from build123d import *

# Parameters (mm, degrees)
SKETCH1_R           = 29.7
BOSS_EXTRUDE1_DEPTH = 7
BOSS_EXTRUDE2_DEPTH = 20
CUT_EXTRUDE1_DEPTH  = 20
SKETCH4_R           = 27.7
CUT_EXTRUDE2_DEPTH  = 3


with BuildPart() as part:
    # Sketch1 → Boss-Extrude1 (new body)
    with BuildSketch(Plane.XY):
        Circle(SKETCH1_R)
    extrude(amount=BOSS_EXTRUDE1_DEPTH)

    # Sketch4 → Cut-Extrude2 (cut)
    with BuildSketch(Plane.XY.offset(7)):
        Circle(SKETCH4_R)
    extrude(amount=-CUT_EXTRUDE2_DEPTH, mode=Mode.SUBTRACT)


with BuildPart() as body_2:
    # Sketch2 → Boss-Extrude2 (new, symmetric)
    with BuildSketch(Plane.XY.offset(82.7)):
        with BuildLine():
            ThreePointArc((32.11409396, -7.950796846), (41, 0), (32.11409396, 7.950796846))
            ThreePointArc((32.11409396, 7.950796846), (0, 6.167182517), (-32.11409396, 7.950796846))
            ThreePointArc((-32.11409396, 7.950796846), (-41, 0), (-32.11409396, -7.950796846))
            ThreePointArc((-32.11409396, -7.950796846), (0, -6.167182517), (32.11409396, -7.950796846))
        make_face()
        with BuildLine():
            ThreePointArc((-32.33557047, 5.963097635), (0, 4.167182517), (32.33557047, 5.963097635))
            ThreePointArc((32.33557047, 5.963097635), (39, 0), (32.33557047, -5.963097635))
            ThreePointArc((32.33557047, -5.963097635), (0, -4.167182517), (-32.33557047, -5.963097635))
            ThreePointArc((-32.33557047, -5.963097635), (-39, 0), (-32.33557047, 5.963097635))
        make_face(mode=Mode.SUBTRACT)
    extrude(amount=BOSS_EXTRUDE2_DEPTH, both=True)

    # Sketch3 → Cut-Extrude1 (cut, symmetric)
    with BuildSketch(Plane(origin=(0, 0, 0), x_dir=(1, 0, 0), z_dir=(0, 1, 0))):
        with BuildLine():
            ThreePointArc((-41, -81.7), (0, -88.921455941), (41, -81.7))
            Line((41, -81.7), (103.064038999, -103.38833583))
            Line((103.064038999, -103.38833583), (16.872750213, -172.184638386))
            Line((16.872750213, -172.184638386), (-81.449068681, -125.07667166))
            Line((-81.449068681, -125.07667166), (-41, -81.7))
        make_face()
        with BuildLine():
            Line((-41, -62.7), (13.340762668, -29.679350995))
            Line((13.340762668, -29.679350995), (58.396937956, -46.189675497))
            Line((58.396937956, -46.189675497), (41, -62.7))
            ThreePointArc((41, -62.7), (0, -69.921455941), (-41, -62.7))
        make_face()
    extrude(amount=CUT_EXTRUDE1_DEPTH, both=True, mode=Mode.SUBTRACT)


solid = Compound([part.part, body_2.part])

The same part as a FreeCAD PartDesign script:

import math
import FreeCAD as App
import Part
import Sketcher
from FreeCAD import Vector

doc = App.newDocument("Part")
body = doc.addObject("PartDesign::Body", "Body")

sketch1 = doc.addObject("Sketcher::SketchObject", "Sketch")
body.addObject(sketch1)
sketch1.AttachmentSupport = (doc.XY_Plane, [""])
sketch1.MapMode = "FlatFace"
sketch1.addGeometry(Part.Circle(Vector(0, 0, 0), Vector(0, 0, 1), 30), False)
sketch1.addConstraint(Sketcher.Constraint("Coincident", 0, 3, -1, 1))
sketch1.addConstraint(Sketcher.Constraint("Diameter", 0, 59.4))
pad1 = doc.addObject("PartDesign::Pad", "Pad")
body.addObject(pad1)
pad1.Profile = sketch1
pad1.Length = 7

sketch2 = doc.addObject("Sketcher::SketchObject", "Sketch001")
body.addObject(sketch2)
sketch2.AttachmentSupport = (doc.XY_Plane, [""])
sketch2.MapMode = "FlatFace"
sketch2.AttachmentOffset = App.Placement(Vector(0, 0, 7), App.Rotation())
sketch2.addGeometry(Part.Circle(Vector(0, 0, 0), Vector(0, 0, 1), 28), False)
sketch2.addConstraint(Sketcher.Constraint("Coincident", 0, 3, -1, 1))
sketch2.addConstraint(Sketcher.Constraint("Diameter", 0, 55.4))
pocket1 = doc.addObject("PartDesign::Pocket", "Pocket")
body.addObject(pocket1)
pocket1.Profile = sketch2
pocket1.Length = 3
body2 = doc.addObject("PartDesign::Body", "Body001")

sketch3 = doc.addObject("Sketcher::SketchObject", "Sketch002")
body2.addObject(sketch3)
sketch3.AttachmentSupport = (doc.getObject("XY_Plane001"), [""])
sketch3.MapMode = "FlatFace"
sketch3.AttachmentOffset = App.Placement(Vector(0, 0, 82.7), App.Rotation())
sketch3.addGeometry(Part.ArcOfCircle(Part.Circle(Vector(33, 0, 0), Vector(0, 0, 1), 8), math.radians(-96), math.radians(96)), False)
sketch3.addGeometry(Part.ArcOfCircle(Part.Circle(Vector(0, 296, 0), Vector(0, 0, 1), 290), math.radians(-96.36), math.radians(-83.64)), False)
sketch3.addGeometry(Part.ArcOfCircle(Part.Circle(Vector(-33, 0, 0), Vector(0, 0, 1), 8), math.radians(84), math.radians(276)), False)
sketch3.addGeometry(Part.ArcOfCircle(Part.Circle(Vector(0, -296, 0), Vector(0, 0, 1), 290), math.radians(83.64), math.radians(96.36)), False)
sketch3.addGeometry(Part.ArcOfCircle(Part.Circle(Vector(-33, 0, 0), Vector(0, 0, 1), 6), math.radians(84), math.radians(276)), False)
sketch3.addGeometry(Part.ArcOfCircle(Part.Circle(Vector(0, 296, 0), Vector(0, 0, 1), 292), math.radians(-96.36), math.radians(-83.64)), False)
sketch3.addGeometry(Part.ArcOfCircle(Part.Circle(Vector(33, 0, 0), Vector(0, 0, 1), 6), math.radians(-96), math.radians(96)), False)
sketch3.addGeometry(Part.ArcOfCircle(Part.Circle(Vector(0, -296, 0), Vector(0, 0, 1), 292), math.radians(83.64), math.radians(96.36)), False)
sketch3.addConstraint(Sketcher.Constraint("Tangent", 0, 2, 1, 2))
sketch3.addConstraint(Sketcher.Constraint("Tangent", 1, 1, 2, 1))
sketch3.addConstraint(Sketcher.Constraint("Tangent", 2, 2, 3, 2))
sketch3.addConstraint(Sketcher.Constraint("Tangent", 3, 1, 0, 1))
sketch3.addConstraint(Sketcher.Constraint("Tangent", 4, 1, 5, 1))
sketch3.addConstraint(Sketcher.Constraint("Tangent", 5, 2, 6, 2))
sketch3.addConstraint(Sketcher.Constraint("Tangent", 6, 1, 7, 1))
sketch3.addConstraint(Sketcher.Constraint("Tangent", 7, 2, 4, 2))
sketch3.addConstraint(Sketcher.Constraint("Coincident", 4, 3, 2, 3))
sketch3.addConstraint(Sketcher.Constraint("Coincident", 5, 3, 1, 3))
sketch3.addConstraint(Sketcher.Constraint("Coincident", 6, 3, 0, 3))
sketch3.addConstraint(Sketcher.Constraint("Equal", 0, 2))
sketch3.addConstraint(Sketcher.Constraint("Equal", 1, 3))
sketch3.addConstraint(Sketcher.Constraint("Equal", 5, 7))
sketch3.addConstraint(Sketcher.Constraint("Symmetric", 0, 3, 2, 3, -1, 1))
sketch3.addConstraint(Sketcher.Constraint("PointOnObject", 0, 3, -1))
sketch3.addConstraint(Sketcher.Constraint("Radius", 0, 8.0))
sketch3.addConstraint(Sketcher.Constraint("Radius", 1, 290.0))
sketch3.addConstraint(Sketcher.Constraint("Radius", 4, 6.0))
sketch3.addConstraint(Sketcher.Constraint("DistanceX", -1, 1, 0, 3, 33.0))
pad2 = doc.addObject("PartDesign::Pad", "Pad001")
body2.addObject(pad2)
pad2.Profile = sketch3
pad2.Length = 40
pad2.Midplane = True

sketch4 = doc.addObject("Sketcher::SketchObject", "Sketch003")
body2.addObject(sketch4)
sketch4.AttachmentSupport = (doc.getObject("XZ_Plane001"), [""])
sketch4.MapMode = "FlatFace"
sketch4.addGeometry(Part.ArcOfCircle(Part.Circle(Vector(0, -31, 0), Vector(0, 0, 1), 120), math.radians(70), math.radians(110)), False)
sketch4.addGeometry(Part.LineSegment(Vector(-41, 82, 0), Vector(-81, 125, 0)), False)
sketch4.addGeometry(Part.LineSegment(Vector(-81, 125, 0), Vector(17, 172, 0)), False)
sketch4.addGeometry(Part.LineSegment(Vector(17, 172, 0), Vector(103, 103, 0)), False)
sketch4.addGeometry(Part.LineSegment(Vector(103, 103, 0), Vector(41, 82, 0)), False)
sketch4.addGeometry(Part.LineSegment(Vector(13, 30, 0), Vector(-41, 63, 0)), False)
sketch4.addGeometry(Part.ArcOfCircle(Part.Circle(Vector(0, -50, 0), Vector(0, 0, 1), 120), math.radians(70), math.radians(110)), False)
sketch4.addGeometry(Part.LineSegment(Vector(41, 63, 0), Vector(58, 46, 0)), False)
sketch4.addGeometry(Part.LineSegment(Vector(58, 46, 0), Vector(13, 30, 0)), False)
sketch4.addConstraint(Sketcher.Constraint("Coincident", 0, 2, 1, 1))
sketch4.addConstraint(Sketcher.Constraint("Coincident", 1, 2, 2, 1))
sketch4.addConstraint(Sketcher.Constraint("Coincident", 2, 2, 3, 1))
sketch4.addConstraint(Sketcher.Constraint("Coincident", 3, 2, 4, 1))
sketch4.addConstraint(Sketcher.Constraint("Coincident", 4, 2, 0, 1))
sketch4.addConstraint(Sketcher.Constraint("Coincident", 5, 2, 6, 2))
sketch4.addConstraint(Sketcher.Constraint("Coincident", 6, 1, 7, 1))
sketch4.addConstraint(Sketcher.Constraint("Coincident", 7, 2, 8, 1))
sketch4.addConstraint(Sketcher.Constraint("Coincident", 8, 2, 5, 1))
sketch4.addConstraint(Sketcher.Constraint("Equal", 0, 6))
sketch4.addConstraint(Sketcher.Constraint("Symmetric", 0, 2, 4, 2, -2))
sketch4.addConstraint(Sketcher.Constraint("Symmetric", 5, 2, 6, 1, -2))
sketch4.addConstraint(Sketcher.Constraint("Vertical", 0, 2, 5, 2))
sketch4.addConstraint(Sketcher.Constraint("Radius", 0, 120.0))
sketch4.addConstraint(Sketcher.Constraint("DistanceX", 0, 2, -1, 1, 41.0))
sketch4.addConstraint(Sketcher.Constraint("DistanceY", 6, 3, 0, 3, 19.0))
sketch4.addConstraint(Sketcher.Constraint("DistanceY", -1, 1, 0, 2, 81.7))
sketch4.addConstraint(Sketcher.Constraint("DistanceX", 7, 2, 3, 2, 44.667101))
sketch4.addConstraint(Sketcher.Constraint("Distance", 4, 65.744421))
sketch4.addConstraint(Sketcher.Constraint("Distance", 7, 23.98425))
sketch4.addConstraint(Sketcher.Constraint("DistanceX", 1, 2, -1, 1, 81.449069))
sketch4.addConstraint(Sketcher.Constraint("DistanceY", -1, 1, 1, 2, 125.076672))
sketch4.addConstraint(Sketcher.Constraint("DistanceX", -1, 1, 2, 2, 16.87275))
sketch4.addConstraint(Sketcher.Constraint("DistanceY", -1, 1, 2, 2, 172.184638))
sketch4.addConstraint(Sketcher.Constraint("DistanceX", -1, 1, 3, 2, 103.064039))
sketch4.addConstraint(Sketcher.Constraint("DistanceY", -1, 1, 8, 2, 29.679351))
sketch4.addConstraint(Sketcher.Constraint("Distance", 5, 63.586805))
pocket2 = doc.addObject("PartDesign::Pocket", "Pocket001")
body2.addObject(pocket2)
pocket2.Profile = sketch4
pocket2.Length = 40
pocket2.Midplane = True

doc.recompute()
